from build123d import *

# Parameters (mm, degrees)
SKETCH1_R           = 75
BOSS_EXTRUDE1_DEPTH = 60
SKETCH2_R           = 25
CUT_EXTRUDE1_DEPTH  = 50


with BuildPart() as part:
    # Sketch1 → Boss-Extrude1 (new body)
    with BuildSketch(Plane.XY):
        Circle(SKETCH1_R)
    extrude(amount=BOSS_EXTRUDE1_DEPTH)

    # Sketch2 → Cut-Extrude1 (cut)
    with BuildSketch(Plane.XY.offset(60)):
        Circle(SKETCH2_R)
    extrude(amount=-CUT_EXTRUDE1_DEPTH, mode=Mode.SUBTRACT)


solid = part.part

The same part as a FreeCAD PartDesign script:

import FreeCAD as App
import Part
import Sketcher
from FreeCAD import Vector
Q = App.Units.Quantity

doc = App.newDocument("Part")
body = doc.addObject("PartDesign::Body", "Body")

sketch1 = body.newObject("Sketcher::SketchObject", "Sketch")
sketch1.AttachmentSupport = (doc.getObject("XY_Plane"), [""])
sketch1.MapMode = "FlatFace"
sketch1.addGeometry(Part.Circle(Vector(0, 0, 0), Vector(0, 0, 1), 75), False)
sketch1.addConstraint([
    Sketcher.Constraint("Coincident", 0, 3, -1, 1),
    Sketcher.Constraint("Diameter", 0, Q("150 mm")),
])
pad1 = body.newObject("PartDesign::Pad", "Pad")
pad1.Profile = sketch1
pad1.Length = 60

sketch2 = body.newObject("Sketcher::SketchObject", "Sketch001")
sketch2.AttachmentSupport = (doc.getObject("XY_Plane"), [""])
sketch2.MapMode = "FlatFace"
sketch2.AttachmentOffset = App.Placement(Vector(0, 0, 60), App.Rotation())
sketch2.addGeometry(Part.Circle(Vector(0, 0, 0), Vector(0, 0, 1), 25), False)
sketch2.addConstraint([
    Sketcher.Constraint("Coincident", 0, 3, -1, 1),
    Sketcher.Constraint("Diameter", 0, Q("50 mm")),
])
pocket1 = body.newObject("PartDesign::Pocket", "Pocket")
pocket1.Profile = sketch2
pocket1.Length = 50

doc.recompute()
